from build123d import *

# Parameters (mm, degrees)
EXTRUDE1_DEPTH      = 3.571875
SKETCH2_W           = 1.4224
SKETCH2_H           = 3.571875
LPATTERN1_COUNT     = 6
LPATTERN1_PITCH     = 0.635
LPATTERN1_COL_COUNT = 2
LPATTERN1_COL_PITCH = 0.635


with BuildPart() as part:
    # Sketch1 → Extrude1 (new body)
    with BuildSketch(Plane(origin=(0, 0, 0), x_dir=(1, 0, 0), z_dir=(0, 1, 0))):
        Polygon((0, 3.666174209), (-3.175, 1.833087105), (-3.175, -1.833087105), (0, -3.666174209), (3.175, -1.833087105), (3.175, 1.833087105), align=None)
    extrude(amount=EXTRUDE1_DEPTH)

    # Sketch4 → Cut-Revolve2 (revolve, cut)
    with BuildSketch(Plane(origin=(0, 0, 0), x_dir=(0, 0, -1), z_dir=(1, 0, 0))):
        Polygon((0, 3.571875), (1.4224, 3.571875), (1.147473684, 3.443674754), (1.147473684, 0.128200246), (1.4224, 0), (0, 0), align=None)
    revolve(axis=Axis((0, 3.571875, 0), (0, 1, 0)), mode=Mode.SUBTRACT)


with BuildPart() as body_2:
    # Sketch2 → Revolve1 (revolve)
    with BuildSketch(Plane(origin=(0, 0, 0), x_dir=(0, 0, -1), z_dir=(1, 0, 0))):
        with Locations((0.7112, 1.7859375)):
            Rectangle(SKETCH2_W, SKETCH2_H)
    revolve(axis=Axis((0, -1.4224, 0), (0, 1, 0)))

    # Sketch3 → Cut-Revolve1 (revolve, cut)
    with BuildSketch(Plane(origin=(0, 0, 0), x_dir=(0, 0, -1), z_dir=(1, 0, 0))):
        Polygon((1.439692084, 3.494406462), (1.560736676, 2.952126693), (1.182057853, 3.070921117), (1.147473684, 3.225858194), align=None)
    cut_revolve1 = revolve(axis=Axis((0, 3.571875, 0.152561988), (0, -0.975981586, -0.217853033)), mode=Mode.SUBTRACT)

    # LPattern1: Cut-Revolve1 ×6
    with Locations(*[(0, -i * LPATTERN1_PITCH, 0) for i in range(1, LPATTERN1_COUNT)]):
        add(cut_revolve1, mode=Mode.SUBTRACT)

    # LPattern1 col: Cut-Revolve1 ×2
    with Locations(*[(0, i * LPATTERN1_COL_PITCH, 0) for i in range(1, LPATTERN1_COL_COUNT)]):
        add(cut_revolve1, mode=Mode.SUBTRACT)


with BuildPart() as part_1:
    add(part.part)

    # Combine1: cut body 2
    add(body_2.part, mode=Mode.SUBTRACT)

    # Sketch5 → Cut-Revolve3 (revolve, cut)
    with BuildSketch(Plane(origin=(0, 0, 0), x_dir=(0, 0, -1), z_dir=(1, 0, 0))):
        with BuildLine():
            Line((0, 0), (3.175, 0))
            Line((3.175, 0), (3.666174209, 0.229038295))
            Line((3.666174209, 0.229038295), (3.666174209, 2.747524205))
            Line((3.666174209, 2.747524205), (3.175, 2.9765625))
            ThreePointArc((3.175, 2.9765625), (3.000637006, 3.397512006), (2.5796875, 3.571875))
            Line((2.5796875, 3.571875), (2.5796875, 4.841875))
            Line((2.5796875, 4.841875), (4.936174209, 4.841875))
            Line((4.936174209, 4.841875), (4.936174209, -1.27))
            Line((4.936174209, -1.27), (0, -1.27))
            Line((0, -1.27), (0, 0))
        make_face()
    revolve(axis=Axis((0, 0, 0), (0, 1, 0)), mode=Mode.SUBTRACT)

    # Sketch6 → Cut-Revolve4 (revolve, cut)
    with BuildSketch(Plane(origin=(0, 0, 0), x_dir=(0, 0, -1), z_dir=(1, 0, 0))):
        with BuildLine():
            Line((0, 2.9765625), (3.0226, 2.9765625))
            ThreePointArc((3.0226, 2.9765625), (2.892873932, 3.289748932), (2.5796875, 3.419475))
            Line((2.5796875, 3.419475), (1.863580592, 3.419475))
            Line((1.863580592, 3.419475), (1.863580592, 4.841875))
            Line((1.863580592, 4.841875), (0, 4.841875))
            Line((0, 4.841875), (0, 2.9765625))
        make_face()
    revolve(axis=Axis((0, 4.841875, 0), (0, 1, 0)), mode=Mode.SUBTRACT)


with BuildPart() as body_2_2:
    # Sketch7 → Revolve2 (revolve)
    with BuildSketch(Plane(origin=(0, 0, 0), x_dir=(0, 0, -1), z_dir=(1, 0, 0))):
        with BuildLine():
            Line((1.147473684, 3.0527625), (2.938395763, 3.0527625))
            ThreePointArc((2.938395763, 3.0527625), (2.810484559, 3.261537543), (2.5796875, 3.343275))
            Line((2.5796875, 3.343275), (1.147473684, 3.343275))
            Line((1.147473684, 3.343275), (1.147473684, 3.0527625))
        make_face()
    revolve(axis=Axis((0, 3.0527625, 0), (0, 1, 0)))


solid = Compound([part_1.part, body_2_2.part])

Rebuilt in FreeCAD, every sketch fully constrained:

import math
import FreeCAD as App
import Part
import Sketcher

V = App.Vector
Q = App.Units.Quantity

doc = App.newDocument("Part")
params = doc.addObject("Spreadsheet::Sheet", "Params")
for row, (alias, value) in enumerate([
    ("pad1_length", "0.140625 in"),
    ("sketch2_width", "0.140625 in"),
    ("sketch2_height", "0.056 in"),
    ("groove_angle", "360 deg"),
    ("sketch3_width", "0.140625 in"),
    ("sketch3_height", "0.056 in"),
    ("revolution_angle", "360 deg"),
    ("sketch4_length", "0.015625 in"),
    ("groove2_angle", "360 deg"),
    ("linearpattern_pitch", "0.025 in"),
    ("linearpattern2_pitch", "0.025 in"),
    ("sketch5_width", "0.05 in"),
    ("sketch5_height", "0.125 in"),
    ("groove3_angle", "360 deg"),
    ("sketch6_width", "0.056 in"),
    ("sketch6_height", "0.119 in"),
    ("groove4_angle", "360 deg"),
    ("revolution2_angle", "360 deg"),
], start=1):
    params.set(f"A{row}", alias)
    params.set(f"B{row}", "=" + value)
    params.setAlias(f"B{row}", alias)

body = doc.addObject("PartDesign::Body", "Body")

# Sketch on XZ plane
sketch1 = body.newObject("Sketcher::SketchObject", "Sketch")
sketch1.AttachmentSupport = (doc.getObject("XZ_Plane"), [""])
sketch1.MapMode = "FlatFace"
sketch1.addGeometry(Part.LineSegment(V(0, -3.666174, 0), V(-3.175, -1.833087, 0)), False)
sketch1.addGeometry(Part.LineSegment(V(-3.175, -1.833087, 0), V(-3.175, 1.833087, 0)), False)
sketch1.addGeometry(Part.LineSegment(V(-3.175, 1.833087, 0), V(0, 3.666174, 0)), False)
sketch1.addGeometry(Part.LineSegment(V(0, 3.666174, 0), V(3.175, 1.833087, 0)), False)
sketch1.addGeometry(Part.LineSegment(V(3.175, 1.833087, 0), V(3.175, -1.833087, 0)), False)
sketch1.addGeometry(Part.LineSegment(V(3.175, -1.833087, 0), V(0, -3.666174, 0)), False)
sketch1.addConstraint(Sketcher.Constraint("Coincident", 0, 2, 1, 1))
sketch1.addConstraint(Sketcher.Constraint("Coincident", 1, 2, 2, 1))
sketch1.addConstraint(Sketcher.Constraint("Coincident", 2, 2, 3, 1))
sketch1.addConstraint(Sketcher.Constraint("Coincident", 3, 2, 4, 1))
sketch1.addConstraint(Sketcher.Constraint("Coincident", 4, 2, 5, 1))
sketch1.addConstraint(Sketcher.Constraint("Coincident", 5, 2, 0, 1))
sketch1.addConstraint(Sketcher.Constraint("Vertical", 1))
sketch1.addConstraint(Sketcher.Constraint("Vertical", 4))
sketch1.addConstraint(Sketcher.Constraint("Symmetric", 0, 2, 3, 2, -1, 1))
sketch1.addConstraint(Sketcher.Constraint("Symmetric", 2, 2, 5, 2, -1, 1))
sketch1.addConstraint(Sketcher.Constraint("PointOnObject", 2, 2, -2))
sketch1.addConstraint(Sketcher.Constraint("Parallel", 2, 5))
sketch1.addConstraint(Sketcher.Constraint("Horizontal", 1, 2, 3, 2))
sketch1.addConstraint(Sketcher.Constraint("Angle", 0, Q("150 deg")))
sketch1.addConstraint(Sketcher.Constraint("DistanceX", 1, 2, 3, 2, Q("0.25 in")))
sketch1.addConstraint(Sketcher.Constraint("DistanceY", 1, 1, 1, 2, 3.666174))
pad1 = body.newObject("PartDesign::Pad", "Pad")
pad1.Profile = sketch1
pad1.setExpression("Length", "Params.pad1_length")
pad1.Reversed = True

# Sketch on YZ plane
sketch2 = body.newObject("Sketcher::SketchObject", "Sketch001")
sketch2.AttachmentSupport = (doc.getObject("YZ_Plane"), [""])
sketch2.MapMode = "FlatFace"
sketch2.addGeometry(Part.LineSegment(V(3.571875, -1.4224, 0), V(3.571875, 0, 0)), False)
sketch2.addGeometry(Part.LineSegment(V(3.571875, 0, 0), V(0, 0, 0)), False)
sketch2.addGeometry(Part.LineSegment(V(0, 0, 0), V(0, -1.4224, 0)), False)
sketch2.addGeometry(Part.LineSegment(V(0, -1.4224, 0), V(0.1282, -1.147474, 0)), False)
sketch2.addGeometry(Part.LineSegment(V(0.1282, -1.147474, 0), V(3.443675, -1.147474, 0)), False)
sketch2.addGeometry(Part.LineSegment(V(3.443675, -1.147474, 0), V(3.571875, -1.4224, 0)), False)
sketch2.addConstraint(Sketcher.Constraint("Coincident", 0, 2, 1, 1))
sketch2.addConstraint(Sketcher.Constraint("Coincident", 1, 2, 2, 1))
sketch2.addConstraint(Sketcher.Constraint("Coincident", 2, 2, 3, 1))
sketch2.addConstraint(Sketcher.Constraint("Coincident", 3, 2, 4, 1))
sketch2.addConstraint(Sketcher.Constraint("Coincident", 4, 2, 5, 1))
sketch2.addConstraint(Sketcher.Constraint("Coincident", 5, 2, 0, 1))
sketch2.addConstraint(Sketcher.Constraint("Vertical", 0))
sketch2.addConstraint(Sketcher.Constraint("Horizontal", 1))
sketch2.addConstraint(Sketcher.Constraint("Vertical", 2))
sketch2.addConstraint(Sketcher.Constraint("Horizontal", 4))
sketch2.addConstraint(Sketcher.Constraint("Coincident", 1, 2, -1, 1))
sketch2.addConstraint(Sketcher.Constraint("Horizontal", 2, 2, 5, 2))
sketch2.addConstraint(Sketcher.Constraint("Equal", 3, 5))
sketch2.addConstraint(Sketcher.Constraint("Angle", 3, Q("65 deg")))
sketch2.addConstraint(Sketcher.Constraint("DistanceX", 1, 2, 1, 1, Q("0.140625 in")))
sketch2.addConstraint(Sketcher.Constraint("DistanceY", 0, 1, 0, 2, Q("0.056 in")))
sketch2.addConstraint(Sketcher.Constraint("DistanceX", -1, 1, 3, 2, 0.1282))
sketch2.setExpression("Constraints[14]", "Params.sketch2_width")
sketch2.setExpression("Constraints[15]", "Params.sketch2_height")
groove = body.newObject("PartDesign::Groove", "Groove")
groove.Profile = sketch2
groove.ReferenceAxis = (sketch2, ["H_Axis"])
groove.setExpression("Angle", "Params.groove_angle")
body2 = doc.addObject("PartDesign::Body", "Body001")

# Sketch on YZ plane
sketch3 = body2.newObject("Sketcher::SketchObject", "Sketch002")
sketch3.AttachmentSupport = (doc.getObject("YZ_Plane001"), [""])
sketch3.MapMode = "FlatFace"
sketch3.addGeometry(Part.LineSegment(V(3.571875, 0, 0), V(0, 0, 0)), False)
sketch3.addGeometry(Part.LineSegment(V(0, 0, 0), V(0, -1.4224, 0)), False)
sketch3.addGeometry(Part.LineSegment(V(0, -1.4224, 0), V(3.571875, -1.4224, 0)), False)
sketch3.addGeometry(Part.LineSegment(V(3.571875, -1.4224, 0), V(3.571875, 0, 0)), False)
sketch3.addConstraint(Sketcher.Constraint("Coincident", 0, 2, 1, 1))
sketch3.addConstraint(Sketcher.Constraint("Coincident", 1, 2, 2, 1))
sketch3.addConstraint(Sketcher.Constraint("Coincident", 2, 2, 3, 1))
sketch3.addConstraint(Sketcher.Constraint("Coincident", 3, 2, 0, 1))
sketch3.addConstraint(Sketcher.Constraint("Horizontal", 0))
sketch3.addConstraint(Sketcher.Constraint("Vertical", 1))
sketch3.addConstraint(Sketcher.Constraint("Horizontal", 2))
sketch3.addConstraint(Sketcher.Constraint("Vertical", 3))
sketch3.addConstraint(Sketcher.Constraint("Coincident", 0, 2, -1, 1))
sketch3.addConstraint(Sketcher.Constraint("DistanceX", 0, 2, 0, 1, Q("0.140625 in")))
sketch3.addConstraint(Sketcher.Constraint("DistanceY", 1, 2, 1, 1, Q("0.056 in")))
sketch3.setExpression("Constraints[9]", "Params.sketch3_width")
sketch3.setExpression("Constraints[10]", "Params.sketch3_height")
revolution = body2.newObject("PartDesign::Revolution", "Revolution")
revolution.Profile = sketch3
revolution.ReferenceAxis = (sketch3, ["H_Axis"])
revolution.setExpression("Angle", "Params.revolution_angle")

# Sketch on YZ plane
sketch4 = body2.newObject("Sketcher::SketchObject", "Sketch003")
sketch4.AttachmentSupport = (doc.getObject("YZ_Plane001"), [""])
sketch4.MapMode = "FlatFace"
sketch4.addGeometry(Part.LineSegment(V(2.952127, -1.560737, 0), V(3.494406, -1.439692, 0)), False)
sketch4.addGeometry(Part.LineSegment(V(3.494406, -1.439692, 0), V(3.225858, -1.147474, 0)), False)
sketch4.addGeometry(Part.LineSegment(V(3.225858, -1.147474, 0), V(3.070921, -1.182058, 0)), False)
sketch4.addGeometry(Part.LineSegment(V(3.070921, -1.182058, 0), V(2.952127, -1.560737, 0)), False)
sketch4.addGeometry(Part.LineSegment(V(3.159537, 0.060522, 0), V(2.617257, -0.060522, 0)), True)  # axis
sketch4.addConstraint(Sketcher.Constraint("Coincident", 0, 2, 1, 1))
sketch4.addConstraint(Sketcher.Constraint("Coincident", 1, 2, 2, 1))
sketch4.addConstraint(Sketcher.Constraint("Coincident", 2, 2, 3, 1))
sketch4.addConstraint(Sketcher.Constraint("Coincident", 3, 2, 0, 1))
sketch4.addConstraint(Sketcher.Constraint("Parallel", 0, 2))
sketch4.addConstraint(Sketcher.Constraint("Parallel", 2, 4))
sketch4.addConstraint(Sketcher.Constraint("Equal", 1, 3))
sketch4.addConstraint(Sketcher.Constraint("Equal", 0, 4))
sketch4.addConstraint(Sketcher.Constraint("Distance", 1, Q("0.015625 in")))
sketch4.addConstraint(Sketcher.Constraint("DistanceX", 2, 2, 1, 2, Q("0.0060999 in")))
sketch4.addConstraint(Sketcher.Constraint("DistanceX", 4, 2, 1, 2, 0.608601))
sketch4.addConstraint(Sketcher.Constraint("Distance", 2, 0.15875))
sketch4.addConstraint(Sketcher.Constraint("DistanceX", -1, 1, 1, 2, 3.225858))
sketch4.addConstraint(Sketcher.Constraint("DistanceX", 1, 2, 0, 2, 0.268548))
sketch4.addConstraint(Sketcher.Constraint("DistanceY", 2, 2, 4, 1, 1.24258))
sketch4.addConstraint(Sketcher.Constraint("DistanceY", 0, 2, -1, 1, 1.439692))
sketch4.setExpression("Constraints[8]", "Params.sketch4_length")
groove2 = body2.newObject("PartDesign::Groove", "Groove001")
groove2.Profile = sketch4
groove2.ReferenceAxis = (sketch4, ["Axis0"])
groove2.setExpression("Angle", "Params.groove2_angle")
doc.recompute()

linearpattern = body2.newObject("PartDesign::LinearPattern", "LinearPattern")
linearpattern.Originals = [groove2]
linearpattern.Direction = (doc.getObject("Y_Axis001"), [""])
linearpattern.Mode = "offset"
linearpattern.setExpression("Offset", "Params.linearpattern_pitch")
linearpattern.Occurrences = 6
linearpattern.Reversed = True
body2.Tip = linearpattern
doc.recompute()

linearpattern2 = body2.newObject("PartDesign::LinearPattern", "LinearPattern001")
linearpattern2.Originals = [groove2]
linearpattern2.Direction = (doc.getObject("Y_Axis001"), [""])
linearpattern2.Mode = "offset"
linearpattern2.setExpression("Offset", "Params.linearpattern2_pitch")
linearpattern2.Occurrences = 2
body2.Tip = linearpattern2
doc.recompute()

boolean = body.newObject("PartDesign::Boolean", "Boolean")
boolean.Type = "Cut"
boolean.addObjects([body2])

# Sketch on YZ plane
sketch5 = body.newObject("Sketcher::SketchObject", "Sketch004")
sketch5.AttachmentSupport = (doc.getObject("YZ_Plane"), [""])
sketch5.MapMode = "FlatFace"
sketch5.addGeometry(Part.LineSegment(V(0, -3.175, 0), V(0, 0, 0)), False)
sketch5.addGeometry(Part.LineSegment(V(0, 0, 0), V(-1.27, 0, 0)), False)
sketch5.addGeometry(Part.LineSegment(V(-1.27, 0, 0), V(-1.27, -4.936174, 0)), False)
sketch5.addGeometry(Part.LineSegment(V(-1.27, -4.936174, 0), V(4.841875, -4.936174, 0)), False)
sketch5.addGeometry(Part.LineSegment(V(4.841875, -4.936174, 0), V(4.841875, -2.579687, 0)), False)
sketch5.addGeometry(Part.LineSegment(V(4.841875, -2.579687, 0), V(3.571875, -2.579687, 0)), False)
sketch5.addGeometry(Part.ArcOfCircle(Part.Circle(V(2.976563, -2.579688, 0), V(0, 0, 1), 0.595312), math.radians(-90), math.radians(0)), False)
sketch5.addGeometry(Part.LineSegment(V(2.976562, -3.175, 0), V(2.747524, -3.666174, 0)), False)
sketch5.addGeometry(Part.LineSegment(V(2.747524, -3.666174, 0), V(0.229038, -3.666174, 0)), False)
sketch5.addGeometry(Part.LineSegment(V(0.229038, -3.666174, 0), V(0, -3.175, 0)), False)
sketch5.addConstraint(Sketcher.Constraint("Coincident", 0, 2, 1, 1))
sketch5.addConstraint(Sketcher.Constraint("Coincident", 1, 2, 2, 1))
sketch5.addConstraint(Sketcher.Constraint("Coincident", 2, 2, 3, 1))
sketch5.addConstraint(Sketcher.Constraint("Coincident", 3, 2, 4, 1))
sketch5.addConstraint(Sketcher.Constraint("Coincident", 4, 2, 5, 1))
sketch5.addConstraint(Sketcher.Constraint("Coincident", 5, 2, 6, 2))
sketch5.addConstraint(Sketcher.Constraint("Coincident", 6, 1, 7, 1))
sketch5.addConstraint(Sketcher.Constraint("Coincident", 7, 2, 8, 1))
sketch5.addConstraint(Sketcher.Constraint("Coincident", 8, 2, 9, 1))
sketch5.addConstraint(Sketcher.Constraint("Coincident", 9, 2, 0, 1))
sketch5.addConstraint(Sketcher.Constraint("Vertical", 0))
sketch5.addConstraint(Sketcher.Constraint("Horizontal", 1))
sketch5.addConstraint(Sketcher.Constraint("Vertical", 2))
sketch5.addConstraint(Sketcher.Constraint("Horizontal", 3))
sketch5.addConstraint(Sketcher.Constraint("Vertical", 4))
sketch5.addConstraint(Sketcher.Constraint("Horizontal", 5))
sketch5.addConstraint(Sketcher.Constraint("Horizontal", 8))
sketch5.addConstraint(Sketcher.Constraint("Coincident", 0, 2, -1, 1))
sketch5.addConstraint(Sketcher.Constraint("Horizontal", 6, 3, 4, 2))
sketch5.addConstraint(Sketcher.Constraint("Horizontal", 6, 1, 9, 2))
sketch5.addConstraint(Sketcher.Constraint("Equal", 1, 5))
sketch5.addConstraint(Sketcher.Constraint("Equal", 7, 9))
sketch5.addConstraint(Sketcher.Constraint("Angle", 7, Q("-115 deg")))
sketch5.addConstraint(Sketcher.Constraint("DistanceX", 1, 2, 1, 1, Q("0.05 in")))
sketch5.addConstraint(Sketcher.Constraint("DistanceY", 0, 1, 0, 2, Q("0.125 in")))
sketch5.addConstraint(Sketcher.Constraint("DistanceY", 3, 2, 7, 2, Q("0.05 in")))
sketch5.addConstraint(Sketcher.Constraint("DistanceX", -1, 1, 5, 2, Q("0.140625 in")))
sketch5.addConstraint(Sketcher.Constraint("Radius", 6, 0.595312))
sketch5.addConstraint(Sketcher.Constraint("Distance", 7, 0.541951))
sketch5.addConstraint(Sketcher.Constraint("DistanceX", 8, 2, 8, 1, 2.518486))
sketch5.setExpression("Constraints[23]", "Params.sketch5_width")
sketch5.setExpression("Constraints[24]", "Params.sketch5_height")
groove3 = body.newObject("PartDesign::Groove", "Groove002")
groove3.Profile = sketch5
groove3.ReferenceAxis = (sketch5, ["H_Axis"])
groove3.setExpression("Angle", "Params.groove3_angle")

# Sketch on YZ plane
sketch6 = body.newObject("Sketcher::SketchObject", "Sketch005")
sketch6.AttachmentSupport = (doc.getObject("YZ_Plane"), [""])
sketch6.MapMode = "FlatFace"
sketch6.addGeometry(Part.LineSegment(V(2.976562, 0, 0), V(2.976562, -3.0226, 0)), False)
sketch6.addGeometry(Part.ArcOfCircle(Part.Circle(V(2.976562, -2.579687, 0), V(0, 0, 1), 0.442913), math.radians(-90), math.radians(0)), False)
sketch6.addGeometry(Part.LineSegment(V(3.419475, -2.579687, 0), V(3.419475, -1.863581, 0)), False)
sketch6.addGeometry(Part.LineSegment(V(3.419475, -1.863581, 0), V(4.841875, -1.863581, 0)), False)
sketch6.addGeometry(Part.LineSegment(V(4.841875, -1.863581, 0), V(4.841875, 0, 0)), False)
sketch6.addGeometry(Part.LineSegment(V(4.841875, 0, 0), V(2.976562, 0, 0)), False)
sketch6.addConstraint(Sketcher.Constraint("Coincident", 0, 2, 1, 1))
sketch6.addConstraint(Sketcher.Constraint("Tangent", 1, 2, 2, 1))
sketch6.addConstraint(Sketcher.Constraint("Coincident", 2, 2, 3, 1))
sketch6.addConstraint(Sketcher.Constraint("Coincident", 3, 2, 4, 1))
sketch6.addConstraint(Sketcher.Constraint("Coincident", 4, 2, 5, 1))
sketch6.addConstraint(Sketcher.Constraint("Coincident", 5, 2, 0, 1))
sketch6.addConstraint(Sketcher.Constraint("Vertical", 0))
sketch6.addConstraint(Sketcher.Constraint("Vertical", 2))
sketch6.addConstraint(Sketcher.Constraint("Horizontal", 3))
sketch6.addConstraint(Sketcher.Constraint("Vertical", 4))
sketch6.addConstraint(Sketcher.Constraint("Horizontal", 5))
sketch6.addConstraint(Sketcher.Constraint("PointOnObject", 4, 2, -1))
sketch6.addConstraint(Sketcher.Constraint("Vertical", 1, 3, 0, 2))
sketch6.addConstraint(Sketcher.Constraint("DistanceX", 3, 1, 3, 2, Q("0.056 in")))
sketch6.addConstraint(Sketcher.Constraint("DistanceY", 0, 2, 0, 1, Q("0.119 in")))
sketch6.addConstraint(Sketcher.Constraint("Radius", 1, 0.442913))
sketch6.addConstraint(Sketcher.Constraint("DistanceY", 4, 1, 4, 2, 1.863581))
sketch6.addConstraint(Sketcher.Constraint("DistanceX", -1, 1, 1, 3, 2.976562))
sketch6.setExpression("Constraints[13]", "Params.sketch6_width")
sketch6.setExpression("Constraints[14]", "Params.sketch6_height")
groove4 = body.newObject("PartDesign::Groove", "Groove003")
groove4.Profile = sketch6
groove4.ReferenceAxis = (sketch6, ["H_Axis"])
groove4.setExpression("Angle", "Params.groove4_angle")
body3 = doc.addObject("PartDesign::Body", "Body002")

# Sketch on YZ plane
sketch7 = body3.newObject("Sketcher::SketchObject", "Sketch006")
sketch7.AttachmentSupport = (doc.getObject("YZ_Plane002"), [""])
sketch7.MapMode = "FlatFace"
sketch7.addGeometry(Part.LineSegment(V(3.052763, -1.147474, 0), V(3.052763, -2.938396, 0)), False)
sketch7.addGeometry(Part.ArcOfCircle(Part.Circle(V(2.976562, -2.579687, 0), V(0, 0, 1), 0.366713), math.radians(-78.006999), math.radians(0)), False)
sketch7.addGeometry(Part.LineSegment(V(3.343275, -2.579687, 0), V(3.343275, -1.147474, 0)), False)
sketch7.addGeometry(Part.LineSegment(V(3.343275, -1.147474, 0), V(3.052763, -1.147474, 0)), False)
sketch7.addConstraint(Sketcher.Constraint("Coincident", 0, 2, 1, 1))
sketch7.addConstraint(Sketcher.Constraint("Tangent", 1, 2, 2, 1))
sketch7.addConstraint(Sketcher.Constraint("Coincident", 2, 2, 3, 1))
sketch7.addConstraint(Sketcher.Constraint("Coincident", 3, 2, 0, 1))
sketch7.addConstraint(Sketcher.Constraint("Vertical", 0))
sketch7.addConstraint(Sketcher.Constraint("Vertical", 2))
sketch7.addConstraint(Sketcher.Constraint("Horizontal", 3))
sketch7.addConstraint(Sketcher.Constraint("DistanceX", 1, 3, 0, 2, Q("0.003 in")))
sketch7.addConstraint(Sketcher.Constraint("Radius", 1, 0.366713))
sketch7.addConstraint(Sketcher.Constraint("DistanceY", 0, 2, 0, 1, 1.790922))
sketch7.addConstraint(Sketcher.Constraint("DistanceX", -1, 1, 1, 3, 2.976562))
sketch7.addConstraint(Sketcher.Constraint("DistanceY", 1, 3, -1, 1, 2.579687))
revolution2 = body3.newObject("PartDesign::Revolution", "Revolution001")
revolution2.Profile = sketch7
revolution2.ReferenceAxis = (sketch7, ["H_Axis"])
revolution2.setExpression("Angle", "Params.revolution2_angle")

doc.recompute()
